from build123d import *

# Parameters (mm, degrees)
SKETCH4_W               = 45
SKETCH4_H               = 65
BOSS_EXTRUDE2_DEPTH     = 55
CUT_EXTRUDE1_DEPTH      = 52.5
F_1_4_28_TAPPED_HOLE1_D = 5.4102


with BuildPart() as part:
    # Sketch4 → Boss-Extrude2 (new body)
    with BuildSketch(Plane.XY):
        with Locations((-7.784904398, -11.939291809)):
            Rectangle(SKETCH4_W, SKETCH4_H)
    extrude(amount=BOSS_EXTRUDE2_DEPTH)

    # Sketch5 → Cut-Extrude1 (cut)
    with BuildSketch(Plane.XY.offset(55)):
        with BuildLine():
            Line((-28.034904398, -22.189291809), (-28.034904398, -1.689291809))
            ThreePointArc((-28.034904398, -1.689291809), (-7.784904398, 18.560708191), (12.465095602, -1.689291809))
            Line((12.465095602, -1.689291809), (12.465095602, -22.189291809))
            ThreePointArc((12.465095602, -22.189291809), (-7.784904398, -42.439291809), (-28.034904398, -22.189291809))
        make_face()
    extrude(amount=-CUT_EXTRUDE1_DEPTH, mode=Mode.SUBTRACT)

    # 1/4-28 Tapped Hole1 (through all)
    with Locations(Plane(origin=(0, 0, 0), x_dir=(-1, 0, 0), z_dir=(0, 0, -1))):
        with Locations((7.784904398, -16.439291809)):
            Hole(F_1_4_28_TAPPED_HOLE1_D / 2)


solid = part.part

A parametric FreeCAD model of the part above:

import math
import FreeCAD as App
import Part
import Sketcher

doc = App.newDocument("Part")
body = doc.addObject("PartDesign::Body", "Body")

sketch1 = doc.addObject("Sketcher::SketchObject", "Sketch")
body.addObject(sketch1)
sketch1.AttachmentSupport = (doc.XY_Plane, [""])
sketch1.MapMode = "FlatFace"
sketch1.addGeometry([
    Part.LineSegment(App.Vector(-30, 21, 0), App.Vector(-30, -44, 0)),
    Part.LineSegment(App.Vector(-30, -44, 0), App.Vector(15, -44, 0)),
    Part.LineSegment(App.Vector(15, -44, 0), App.Vector(15, 21, 0)),
    Part.LineSegment(App.Vector(15, 21, 0), App.Vector(-30, 21, 0)),
], False)
sketch1.addConstraint([
    Sketcher.Constraint("Coincident", 0, 2, 1, 1),
    Sketcher.Constraint("Coincident", 1, 2, 2, 1),
    Sketcher.Constraint("Coincident", 2, 2, 3, 1),
    Sketcher.Constraint("Coincident", 3, 2, 0, 1),
    Sketcher.Constraint("Vertical", 0),
    Sketcher.Constraint("Horizontal", 1),
    Sketcher.Constraint("Vertical", 2),
    Sketcher.Constraint("Horizontal", 3),
    Sketcher.Constraint("DistanceX", 1, 1, 1, 2, 45.0),
    Sketcher.Constraint("DistanceY", 0, 2, 0, 1, 65.0),
    Sketcher.Constraint("DistanceY", 0, 2, -1, 1, 44.439292),
    Sketcher.Constraint("DistanceX", 0, 2, -1, 1, 30.284904),
])
pad1 = doc.addObject("PartDesign::Pad", "Pad")
body.addObject(pad1)
pad1.Profile = sketch1
pad1.Length = 55

sketch2 = doc.addObject("Sketcher::SketchObject", "Sketch001")
body.addObject(sketch2)
sketch2.AttachmentSupport = (doc.XY_Plane, [""])
sketch2.MapMode = "FlatFace"
sketch2.AttachmentOffset = App.Placement(App.Vector(0, 0, 55), App.Rotation())
sketch2.addGeometry([
    Part.LineSegment(App.Vector(-28, -2, 0), App.Vector(-28, -22, 0)),
    Part.ArcOfCircle(Part.Circle(App.Vector(-8, -22, 0), App.Vector(0, 0, 1), 20), math.radians(180), math.radians(360)),
    Part.LineSegment(App.Vector(12, -22, 0), App.Vector(12, -2, 0)),
    Part.ArcOfCircle(Part.Circle(App.Vector(-8, -2, 0), App.Vector(0, 0, 1), 20), math.radians(0), math.radians(180)),
], False)
sketch2.addConstraint([
    Sketcher.Constraint("Tangent", 0, 2, 1, 1),
    Sketcher.Constraint("Tangent", 1, 2, 2, 1),
    Sketcher.Constraint("Tangent", 2, 2, 3, 1),
    Sketcher.Constraint("Tangent", 3, 2, 0, 1),
    Sketcher.Constraint("Vertical", 0),
    Sketcher.Constraint("Vertical", 2),
    Sketcher.Constraint("Radius", 1, 20.25),
    Sketcher.Constraint("DistanceY", 0, 2, 0, 1, 20.5),
    Sketcher.Constraint("DistanceY", 1, 3, -1, 1, 22.189292),
    Sketcher.Constraint("DistanceX", 1, 3, -1, 1, 7.784904),
])
pocket1 = doc.addObject("PartDesign::Pocket", "Pocket")
body.addObject(pocket1)
pocket1.Profile = sketch2
pocket1.Length = 52.5

sketch3 = doc.addObject("Sketcher::SketchObject", "Sketch002")
body.addObject(sketch3)
sketch3.AttachmentSupport = (doc.XY_Plane, [""])
sketch3.MapMode = "FlatFace"
sketch3.addGeometry(Part.Circle(App.Vector(-7.8, -16.4, 0), App.Vector(0, 0, 1), 2.7), False)
sketch3.addConstraint([
    Sketcher.Constraint("Diameter", 0, 5.4102),
    Sketcher.Constraint("DistanceY", 0, 3, -1, 1, 16.439292),
    Sketcher.Constraint("DistanceX", 0, 3, -1, 1, 7.784904),
])
doc.recompute()
hole = doc.addObject("PartDesign::Hole", "Hole")
body.addObject(hole)
hole.Profile = sketch3
hole.ThreadType = "None"
hole.Diameter = 5.4102
hole.DepthType = "ThroughAll"
hole.Reversed = True

doc.recompute()
